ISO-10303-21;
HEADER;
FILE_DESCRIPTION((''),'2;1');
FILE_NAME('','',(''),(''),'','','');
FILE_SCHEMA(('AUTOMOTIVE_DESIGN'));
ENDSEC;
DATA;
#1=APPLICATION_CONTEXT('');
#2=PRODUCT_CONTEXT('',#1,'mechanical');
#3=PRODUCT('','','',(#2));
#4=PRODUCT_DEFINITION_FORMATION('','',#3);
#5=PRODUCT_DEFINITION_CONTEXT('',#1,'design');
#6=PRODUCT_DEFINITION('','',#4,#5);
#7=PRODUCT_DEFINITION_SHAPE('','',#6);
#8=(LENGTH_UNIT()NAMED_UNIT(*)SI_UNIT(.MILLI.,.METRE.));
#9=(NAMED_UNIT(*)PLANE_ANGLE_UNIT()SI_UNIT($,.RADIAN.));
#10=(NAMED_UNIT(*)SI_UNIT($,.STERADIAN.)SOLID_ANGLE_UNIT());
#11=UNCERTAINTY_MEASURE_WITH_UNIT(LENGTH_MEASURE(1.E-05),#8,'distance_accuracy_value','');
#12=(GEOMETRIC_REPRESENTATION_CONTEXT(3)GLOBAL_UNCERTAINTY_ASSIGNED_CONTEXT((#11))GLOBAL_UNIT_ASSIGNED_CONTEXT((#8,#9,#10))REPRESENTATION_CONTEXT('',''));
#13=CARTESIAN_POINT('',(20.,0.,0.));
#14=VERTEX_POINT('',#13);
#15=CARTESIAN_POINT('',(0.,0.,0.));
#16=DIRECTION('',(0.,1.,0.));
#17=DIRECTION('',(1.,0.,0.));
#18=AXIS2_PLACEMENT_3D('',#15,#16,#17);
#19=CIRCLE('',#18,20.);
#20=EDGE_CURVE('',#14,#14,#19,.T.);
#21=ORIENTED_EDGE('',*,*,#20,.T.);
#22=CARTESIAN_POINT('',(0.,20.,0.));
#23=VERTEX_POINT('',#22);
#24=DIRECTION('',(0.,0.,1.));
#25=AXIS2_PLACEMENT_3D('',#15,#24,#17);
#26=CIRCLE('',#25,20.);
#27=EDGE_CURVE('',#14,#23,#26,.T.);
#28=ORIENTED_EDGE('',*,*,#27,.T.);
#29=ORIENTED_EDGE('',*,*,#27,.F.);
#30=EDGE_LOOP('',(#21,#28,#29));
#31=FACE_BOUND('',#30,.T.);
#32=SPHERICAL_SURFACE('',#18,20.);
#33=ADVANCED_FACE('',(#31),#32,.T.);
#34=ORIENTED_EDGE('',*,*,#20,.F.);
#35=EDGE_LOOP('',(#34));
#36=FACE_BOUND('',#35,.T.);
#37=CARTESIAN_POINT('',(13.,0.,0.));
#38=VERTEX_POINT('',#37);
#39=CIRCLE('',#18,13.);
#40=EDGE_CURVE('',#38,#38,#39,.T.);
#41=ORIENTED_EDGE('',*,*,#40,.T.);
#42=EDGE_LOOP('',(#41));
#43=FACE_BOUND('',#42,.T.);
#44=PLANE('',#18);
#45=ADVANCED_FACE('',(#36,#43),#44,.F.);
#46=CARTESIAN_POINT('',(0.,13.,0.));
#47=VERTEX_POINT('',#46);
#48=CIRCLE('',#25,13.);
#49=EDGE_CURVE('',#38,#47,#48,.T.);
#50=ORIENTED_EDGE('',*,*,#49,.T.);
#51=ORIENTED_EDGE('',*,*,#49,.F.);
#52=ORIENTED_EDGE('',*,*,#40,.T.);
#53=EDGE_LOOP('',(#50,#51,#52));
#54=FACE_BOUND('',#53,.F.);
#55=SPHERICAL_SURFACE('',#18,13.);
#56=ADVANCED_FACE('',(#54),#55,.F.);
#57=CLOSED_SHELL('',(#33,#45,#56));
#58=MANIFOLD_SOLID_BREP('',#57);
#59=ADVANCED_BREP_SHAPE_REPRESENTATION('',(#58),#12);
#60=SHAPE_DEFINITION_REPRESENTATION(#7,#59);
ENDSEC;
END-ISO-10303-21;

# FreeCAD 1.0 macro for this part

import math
import FreeCAD as App
import Part
import Sketcher


def faces_at(feature, points):
    """Names of the faces that lie closest to the given points."""
    faces = feature.Shape.Faces
    near = lambda p: min(range(len(faces)), key=lambda i: faces[i].distToShape(Part.Vertex(*p))[0])
    return sorted({f"Face{near(p) + 1}" for p in points})

doc = App.newDocument("Part")
params = doc.addObject("Spreadsheet::Sheet", "Params")
for row, (alias, value) in enumerate([
    ("sketch1_radius", "20 mm"),
    ("revolution_angle", "360 deg"),
    ("thickness_wall", "7 mm"),
], start=1):
    params.set(f"A{row}", alias)
    params.set(f"B{row}", "=" + value)
    params.setAlias(f"B{row}", alias)

body = doc.addObject("PartDesign::Body", "Body")

sketch1 = doc.addObject("Sketcher::SketchObject", "Sketch")
body.addObject(sketch1)
sketch1.AttachmentSupport = (doc.XY_Plane, [""])
sketch1.MapMode = "FlatFace"
sketch1.addGeometry([
    Part.LineSegment(App.Vector(0, 20, 0), App.Vector(0, 0, 0)),
    Part.LineSegment(App.Vector(0, 0, 0), App.Vector(20, 0, 0)),
    Part.ArcOfCircle(Part.Circle(App.Vector(0, 0, 0), App.Vector(0, 0, 1), 20), math.radians(0), math.radians(90)),
], False)
sketch1.addConstraint([
    Sketcher.Constraint("Coincident", 0, 2, 1, 1),
    Sketcher.Constraint("Coincident", 1, 2, 2, 1),
    Sketcher.Constraint("Coincident", 2, 2, 0, 1),
    Sketcher.Constraint("Vertical", 0),
    Sketcher.Constraint("Horizontal", 1),
    Sketcher.Constraint("Coincident", 2, 3, -1, 1),
    Sketcher.Constraint("Coincident", 0, 2, -1, 1),
    Sketcher.Constraint("Radius", 2, 20.0),
])
sketch1.setExpression("Constraints[7]", "Params.sketch1_radius")
revolution = doc.addObject("PartDesign::Revolution", "Revolution")
body.addObject(revolution)
revolution.Profile = sketch1
revolution.ReferenceAxis = (sketch1, ["V_Axis"])
revolution.setExpression("Angle", "Params.revolution_angle")
doc.recompute()

thickness = doc.addObject("PartDesign::Thickness", "Thickness")
body.addObject(thickness)
thickness.Base = (revolution, faces_at(revolution, [(-2.364, 0, -6.233)]))
thickness.setExpression("Value", "Params.thickness_wall")
thickness.Reversed = True
thickness.Join = "Intersection"

doc.recompute()
